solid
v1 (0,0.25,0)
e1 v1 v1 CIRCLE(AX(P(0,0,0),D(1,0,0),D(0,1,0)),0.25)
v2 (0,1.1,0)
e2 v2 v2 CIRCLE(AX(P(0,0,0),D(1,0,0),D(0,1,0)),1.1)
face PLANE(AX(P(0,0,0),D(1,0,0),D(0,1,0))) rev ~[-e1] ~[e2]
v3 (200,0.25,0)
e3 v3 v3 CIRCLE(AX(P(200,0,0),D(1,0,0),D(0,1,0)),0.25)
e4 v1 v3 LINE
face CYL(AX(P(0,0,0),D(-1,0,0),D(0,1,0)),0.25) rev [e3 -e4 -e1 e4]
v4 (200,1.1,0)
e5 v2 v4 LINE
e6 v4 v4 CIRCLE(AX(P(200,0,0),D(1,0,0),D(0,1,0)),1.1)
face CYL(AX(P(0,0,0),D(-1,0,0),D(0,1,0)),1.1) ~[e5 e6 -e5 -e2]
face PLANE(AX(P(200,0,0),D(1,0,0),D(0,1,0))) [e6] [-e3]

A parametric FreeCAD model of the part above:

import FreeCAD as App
import Part
import Sketcher

V = App.Vector

doc = App.newDocument("Part")
body = doc.addObject("PartDesign::Body", "Body")

# Sketch on YZ plane
sketch1 = body.newObject("Sketcher::SketchObject", "Sketch")
sketch1.AttachmentSupport = (doc.getObject("YZ_Plane"), [""])
sketch1.MapMode = "FlatFace"
sketch1.addGeometry(Part.Circle(V(0, 0, 0), V(0, 0, 1), 1.1), False)
sketch1.addGeometry(Part.Circle(V(0, 0, 0), V(0, 0, 1), 0.25), False)
sketch1.addConstraint(Sketcher.Constraint("Coincident", 0, 3, -1, 1))
sketch1.addConstraint(Sketcher.Constraint("Coincident", 1, 3, -1, 1))
sketch1.addConstraint(Sketcher.Constraint("Diameter", 0, 2.2))
sketch1.addConstraint(Sketcher.Constraint("Diameter", 1, 0.5))
pad1 = body.newObject("PartDesign::Pad", "Pad")
pad1.Profile = sketch1
pad1.Length = 200

doc.recompute()
